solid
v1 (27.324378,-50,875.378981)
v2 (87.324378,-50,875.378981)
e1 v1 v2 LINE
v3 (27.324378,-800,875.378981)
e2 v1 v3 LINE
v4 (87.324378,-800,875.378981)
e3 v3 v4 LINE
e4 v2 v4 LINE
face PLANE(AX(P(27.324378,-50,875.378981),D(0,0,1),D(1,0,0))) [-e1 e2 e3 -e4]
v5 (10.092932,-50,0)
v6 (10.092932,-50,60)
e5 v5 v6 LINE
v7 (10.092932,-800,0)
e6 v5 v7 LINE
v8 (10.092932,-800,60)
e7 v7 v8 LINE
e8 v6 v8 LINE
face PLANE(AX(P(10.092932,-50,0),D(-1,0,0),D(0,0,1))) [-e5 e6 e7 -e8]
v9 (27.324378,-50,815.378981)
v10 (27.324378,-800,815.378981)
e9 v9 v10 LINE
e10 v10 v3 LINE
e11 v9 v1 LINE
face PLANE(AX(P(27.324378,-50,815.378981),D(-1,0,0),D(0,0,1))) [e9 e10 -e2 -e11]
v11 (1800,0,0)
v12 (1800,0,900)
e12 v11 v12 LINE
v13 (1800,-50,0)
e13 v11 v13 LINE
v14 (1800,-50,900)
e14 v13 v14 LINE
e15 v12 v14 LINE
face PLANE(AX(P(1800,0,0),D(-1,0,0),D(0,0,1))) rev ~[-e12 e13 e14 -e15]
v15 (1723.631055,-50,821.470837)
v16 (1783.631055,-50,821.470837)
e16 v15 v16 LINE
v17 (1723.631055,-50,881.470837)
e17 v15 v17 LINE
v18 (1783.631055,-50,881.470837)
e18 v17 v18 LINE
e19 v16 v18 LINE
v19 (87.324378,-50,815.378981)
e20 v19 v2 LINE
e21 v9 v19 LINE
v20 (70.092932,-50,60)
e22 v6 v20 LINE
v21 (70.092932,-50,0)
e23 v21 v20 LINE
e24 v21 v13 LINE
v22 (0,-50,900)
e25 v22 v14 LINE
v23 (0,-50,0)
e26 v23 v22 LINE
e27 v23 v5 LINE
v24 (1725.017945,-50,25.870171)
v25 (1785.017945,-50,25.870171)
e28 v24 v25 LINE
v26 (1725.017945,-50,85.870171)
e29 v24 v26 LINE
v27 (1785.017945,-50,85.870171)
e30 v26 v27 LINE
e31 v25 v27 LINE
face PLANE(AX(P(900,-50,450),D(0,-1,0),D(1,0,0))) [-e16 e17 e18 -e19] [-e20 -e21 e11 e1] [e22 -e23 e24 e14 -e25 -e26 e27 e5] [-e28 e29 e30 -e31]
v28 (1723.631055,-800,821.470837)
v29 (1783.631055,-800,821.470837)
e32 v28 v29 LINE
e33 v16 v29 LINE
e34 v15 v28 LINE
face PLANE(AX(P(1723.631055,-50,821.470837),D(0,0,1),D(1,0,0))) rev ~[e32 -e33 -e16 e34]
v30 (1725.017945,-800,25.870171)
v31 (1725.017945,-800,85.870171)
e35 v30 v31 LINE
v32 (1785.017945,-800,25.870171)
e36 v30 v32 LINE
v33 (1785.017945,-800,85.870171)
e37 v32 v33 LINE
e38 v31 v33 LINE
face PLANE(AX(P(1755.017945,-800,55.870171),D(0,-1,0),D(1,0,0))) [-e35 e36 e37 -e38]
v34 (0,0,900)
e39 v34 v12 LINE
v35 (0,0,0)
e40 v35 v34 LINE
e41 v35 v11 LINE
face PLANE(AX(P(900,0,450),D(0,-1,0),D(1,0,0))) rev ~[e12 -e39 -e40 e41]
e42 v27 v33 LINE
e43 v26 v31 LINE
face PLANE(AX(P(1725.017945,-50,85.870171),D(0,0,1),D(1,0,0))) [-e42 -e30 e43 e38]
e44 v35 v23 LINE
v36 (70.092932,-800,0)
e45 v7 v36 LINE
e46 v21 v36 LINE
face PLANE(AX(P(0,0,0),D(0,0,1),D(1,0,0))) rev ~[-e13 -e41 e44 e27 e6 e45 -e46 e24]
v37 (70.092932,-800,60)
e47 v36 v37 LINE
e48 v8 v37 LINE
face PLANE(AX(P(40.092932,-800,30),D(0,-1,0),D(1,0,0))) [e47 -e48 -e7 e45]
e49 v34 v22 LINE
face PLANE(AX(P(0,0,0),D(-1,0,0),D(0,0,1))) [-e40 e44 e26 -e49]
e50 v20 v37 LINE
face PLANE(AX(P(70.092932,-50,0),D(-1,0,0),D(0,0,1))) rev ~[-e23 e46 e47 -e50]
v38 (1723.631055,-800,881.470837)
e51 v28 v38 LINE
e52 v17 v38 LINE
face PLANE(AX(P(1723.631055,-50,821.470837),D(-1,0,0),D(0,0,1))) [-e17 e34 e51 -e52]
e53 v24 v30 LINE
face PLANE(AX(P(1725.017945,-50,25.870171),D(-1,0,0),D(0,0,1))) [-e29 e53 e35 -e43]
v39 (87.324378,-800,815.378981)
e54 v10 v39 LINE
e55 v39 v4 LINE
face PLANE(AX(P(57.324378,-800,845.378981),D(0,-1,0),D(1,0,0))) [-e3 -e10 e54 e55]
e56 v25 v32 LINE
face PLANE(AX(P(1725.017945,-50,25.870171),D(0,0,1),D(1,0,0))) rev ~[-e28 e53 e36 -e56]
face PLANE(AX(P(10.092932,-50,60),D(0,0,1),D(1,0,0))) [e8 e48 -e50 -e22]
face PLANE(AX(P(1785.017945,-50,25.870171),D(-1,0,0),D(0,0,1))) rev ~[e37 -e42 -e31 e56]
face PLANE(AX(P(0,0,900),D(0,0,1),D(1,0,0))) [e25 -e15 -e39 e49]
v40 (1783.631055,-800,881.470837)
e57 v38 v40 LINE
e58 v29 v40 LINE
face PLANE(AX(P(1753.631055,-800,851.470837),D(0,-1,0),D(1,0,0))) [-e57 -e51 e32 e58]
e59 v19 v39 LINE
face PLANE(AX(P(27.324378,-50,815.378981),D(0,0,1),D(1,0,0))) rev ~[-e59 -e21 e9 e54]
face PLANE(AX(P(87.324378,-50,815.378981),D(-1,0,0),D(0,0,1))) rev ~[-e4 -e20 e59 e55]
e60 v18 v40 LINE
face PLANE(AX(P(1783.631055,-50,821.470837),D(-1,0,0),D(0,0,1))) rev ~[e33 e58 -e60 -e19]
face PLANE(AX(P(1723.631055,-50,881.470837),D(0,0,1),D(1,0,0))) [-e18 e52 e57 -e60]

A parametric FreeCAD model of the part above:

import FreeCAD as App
import Part
import Sketcher

V = App.Vector

doc = App.newDocument("Part")
body = doc.addObject("PartDesign::Body", "Body")

# Sketch on XZ plane
sketch1 = body.newObject("Sketcher::SketchObject", "Sketch")
sketch1.AttachmentSupport = (doc.getObject("XZ_Plane"), [""])
sketch1.MapMode = "FlatFace"
sketch1.addGeometry([
    Part.LineSegment(V(0, 900, 0), V(0, 0, 0)),
    Part.LineSegment(V(0, 0, 0), V(1800, 0, 0)),
    Part.LineSegment(V(1800, 0, 0), V(1800, 900, 0)),
    Part.LineSegment(V(1800, 900, 0), V(0, 900, 0)),
], False)
sketch1.addConstraint([
    Sketcher.Constraint("Coincident", 0, 2, 1, 1),
    Sketcher.Constraint("Coincident", 1, 2, 2, 1),
    Sketcher.Constraint("Coincident", 2, 2, 3, 1),
    Sketcher.Constraint("Coincident", 3, 2, 0, 1),
    Sketcher.Constraint("Vertical", 0),
    Sketcher.Constraint("Horizontal", 1),
    Sketcher.Constraint("Vertical", 2),
    Sketcher.Constraint("Horizontal", 3),
    Sketcher.Constraint("Coincident", 0, 2, -1, 1),
    Sketcher.Constraint("DistanceX", 1, 1, 1, 2, 1800.0),
    Sketcher.Constraint("DistanceY", 0, 2, 0, 1, 900.0),
])
pad1 = body.newObject("PartDesign::Pad", "Pad")
pad1.Profile = sketch1
pad1.Length = 50

# Sketch on XZ plane
sketch2 = body.newObject("Sketcher::SketchObject", "Sketch001")
sketch2.AttachmentSupport = (doc.getObject("XZ_Plane"), [""])
sketch2.MapMode = "FlatFace"
sketch2.AttachmentOffset = App.Placement(V(0, 0, 50), App.Rotation())
sketch2.addGeometry([
    Part.LineSegment(V(1725, 86, 0), V(1725, 26, 0)),  # 0
    Part.LineSegment(V(1725, 26, 0), V(1785, 26, 0)),  # 1
    Part.LineSegment(V(1785, 26, 0), V(1785, 86, 0)),  # 2
    Part.LineSegment(V(1785, 86, 0), V(1725, 86, 0)),  # 3
    Part.LineSegment(V(1724, 881, 0), V(1724, 821, 0)),  # 4
    Part.LineSegment(V(1724, 821, 0), V(1784, 821, 0)),  # 5
    Part.LineSegment(V(1784, 821, 0), V(1784, 881, 0)),  # 6
    Part.LineSegment(V(1784, 881, 0), V(1724, 881, 0)),  # 7
    Part.LineSegment(V(10, 60, 0), V(10, 0, 0)),  # 8
    Part.LineSegment(V(10, 0, 0), V(70, 0, 0)),  # 9
    Part.LineSegment(V(70, 0, 0), V(70, 60, 0)),  # 10
    Part.LineSegment(V(70, 60, 0), V(10, 60, 0)),  # 11
    Part.LineSegment(V(27, 875, 0), V(27, 815, 0)),  # 12
    Part.LineSegment(V(27, 815, 0), V(87, 815, 0)),  # 13
    Part.LineSegment(V(87, 815, 0), V(87, 875, 0)),  # 14
    Part.LineSegment(V(87, 875, 0), V(27, 875, 0)),  # 15
], False)
sketch2.addConstraint([
    Sketcher.Constraint("Coincident", 0, 2, 1, 1),
    Sketcher.Constraint("Coincident", 1, 2, 2, 1),
    Sketcher.Constraint("Coincident", 2, 2, 3, 1),
    Sketcher.Constraint("Coincident", 3, 2, 0, 1),
    Sketcher.Constraint("Coincident", 4, 2, 5, 1),
    Sketcher.Constraint("Coincident", 5, 2, 6, 1),
    Sketcher.Constraint("Coincident", 6, 2, 7, 1),
    Sketcher.Constraint("Coincident", 7, 2, 4, 1),
    Sketcher.Constraint("Coincident", 8, 2, 9, 1),
    Sketcher.Constraint("Coincident", 9, 2, 10, 1),
    Sketcher.Constraint("Coincident", 10, 2, 11, 1),
    Sketcher.Constraint("Coincident", 11, 2, 8, 1),
    Sketcher.Constraint("Coincident", 12, 2, 13, 1),
    Sketcher.Constraint("Coincident", 13, 2, 14, 1),
    Sketcher.Constraint("Coincident", 14, 2, 15, 1),
    Sketcher.Constraint("Coincident", 15, 2, 12, 1),
    Sketcher.Constraint("Vertical", 0),
    Sketcher.Constraint("Horizontal", 1),
    Sketcher.Constraint("Vertical", 2),
    Sketcher.Constraint("Horizontal", 3),
    Sketcher.Constraint("Vertical", 4),
    Sketcher.Constraint("Horizontal", 5),
    Sketcher.Constraint("Vertical", 6),
    Sketcher.Constraint("Horizontal", 7),
    Sketcher.Constraint("Vertical", 8),
    Sketcher.Constraint("Horizontal", 9),
    Sketcher.Constraint("Vertical", 10),
    Sketcher.Constraint("Horizontal", 11),
    Sketcher.Constraint("Vertical", 12),
    Sketcher.Constraint("Horizontal", 13),
    Sketcher.Constraint("Vertical", 14),
    Sketcher.Constraint("Horizontal", 15),
    Sketcher.Constraint("PointOnObject", 8, 2, -1),
    Sketcher.Constraint("Equal", 3, 5),
    Sketcher.Constraint("Equal", 7, 9),
    Sketcher.Constraint("Equal", 11, 13),
    Sketcher.Constraint("Equal", 15, 0),
    Sketcher.Constraint("Equal", 2, 4),
    Sketcher.Constraint("Equal", 6, 8),
    Sketcher.Constraint("Equal", 10, 12),
    Sketcher.Constraint("DistanceX", 1, 1, 1, 2, 60.0),
    Sketcher.Constraint("DistanceY", -1, 1, 0, 2, 25.870171),
    Sketcher.Constraint("DistanceX", -1, 1, 8, 2, 10.092932),
    Sketcher.Constraint("DistanceY", -1, 1, 12, 2, 815.378981),
    Sketcher.Constraint("DistanceX", 4, 2, 3, 2, 1.38689),
    Sketcher.Constraint("DistanceX", -1, 1, 0, 2, 1725.017945),
    Sketcher.Constraint("DistanceY", -1, 1, 4, 2, 821.470837),
    Sketcher.Constraint("DistanceX", -1, 1, 12, 2, 27.324378),
])
pad2 = body.newObject("PartDesign::Pad", "Pad001")
pad2.Profile = sketch2
pad2.Length = 750

doc.recompute()
